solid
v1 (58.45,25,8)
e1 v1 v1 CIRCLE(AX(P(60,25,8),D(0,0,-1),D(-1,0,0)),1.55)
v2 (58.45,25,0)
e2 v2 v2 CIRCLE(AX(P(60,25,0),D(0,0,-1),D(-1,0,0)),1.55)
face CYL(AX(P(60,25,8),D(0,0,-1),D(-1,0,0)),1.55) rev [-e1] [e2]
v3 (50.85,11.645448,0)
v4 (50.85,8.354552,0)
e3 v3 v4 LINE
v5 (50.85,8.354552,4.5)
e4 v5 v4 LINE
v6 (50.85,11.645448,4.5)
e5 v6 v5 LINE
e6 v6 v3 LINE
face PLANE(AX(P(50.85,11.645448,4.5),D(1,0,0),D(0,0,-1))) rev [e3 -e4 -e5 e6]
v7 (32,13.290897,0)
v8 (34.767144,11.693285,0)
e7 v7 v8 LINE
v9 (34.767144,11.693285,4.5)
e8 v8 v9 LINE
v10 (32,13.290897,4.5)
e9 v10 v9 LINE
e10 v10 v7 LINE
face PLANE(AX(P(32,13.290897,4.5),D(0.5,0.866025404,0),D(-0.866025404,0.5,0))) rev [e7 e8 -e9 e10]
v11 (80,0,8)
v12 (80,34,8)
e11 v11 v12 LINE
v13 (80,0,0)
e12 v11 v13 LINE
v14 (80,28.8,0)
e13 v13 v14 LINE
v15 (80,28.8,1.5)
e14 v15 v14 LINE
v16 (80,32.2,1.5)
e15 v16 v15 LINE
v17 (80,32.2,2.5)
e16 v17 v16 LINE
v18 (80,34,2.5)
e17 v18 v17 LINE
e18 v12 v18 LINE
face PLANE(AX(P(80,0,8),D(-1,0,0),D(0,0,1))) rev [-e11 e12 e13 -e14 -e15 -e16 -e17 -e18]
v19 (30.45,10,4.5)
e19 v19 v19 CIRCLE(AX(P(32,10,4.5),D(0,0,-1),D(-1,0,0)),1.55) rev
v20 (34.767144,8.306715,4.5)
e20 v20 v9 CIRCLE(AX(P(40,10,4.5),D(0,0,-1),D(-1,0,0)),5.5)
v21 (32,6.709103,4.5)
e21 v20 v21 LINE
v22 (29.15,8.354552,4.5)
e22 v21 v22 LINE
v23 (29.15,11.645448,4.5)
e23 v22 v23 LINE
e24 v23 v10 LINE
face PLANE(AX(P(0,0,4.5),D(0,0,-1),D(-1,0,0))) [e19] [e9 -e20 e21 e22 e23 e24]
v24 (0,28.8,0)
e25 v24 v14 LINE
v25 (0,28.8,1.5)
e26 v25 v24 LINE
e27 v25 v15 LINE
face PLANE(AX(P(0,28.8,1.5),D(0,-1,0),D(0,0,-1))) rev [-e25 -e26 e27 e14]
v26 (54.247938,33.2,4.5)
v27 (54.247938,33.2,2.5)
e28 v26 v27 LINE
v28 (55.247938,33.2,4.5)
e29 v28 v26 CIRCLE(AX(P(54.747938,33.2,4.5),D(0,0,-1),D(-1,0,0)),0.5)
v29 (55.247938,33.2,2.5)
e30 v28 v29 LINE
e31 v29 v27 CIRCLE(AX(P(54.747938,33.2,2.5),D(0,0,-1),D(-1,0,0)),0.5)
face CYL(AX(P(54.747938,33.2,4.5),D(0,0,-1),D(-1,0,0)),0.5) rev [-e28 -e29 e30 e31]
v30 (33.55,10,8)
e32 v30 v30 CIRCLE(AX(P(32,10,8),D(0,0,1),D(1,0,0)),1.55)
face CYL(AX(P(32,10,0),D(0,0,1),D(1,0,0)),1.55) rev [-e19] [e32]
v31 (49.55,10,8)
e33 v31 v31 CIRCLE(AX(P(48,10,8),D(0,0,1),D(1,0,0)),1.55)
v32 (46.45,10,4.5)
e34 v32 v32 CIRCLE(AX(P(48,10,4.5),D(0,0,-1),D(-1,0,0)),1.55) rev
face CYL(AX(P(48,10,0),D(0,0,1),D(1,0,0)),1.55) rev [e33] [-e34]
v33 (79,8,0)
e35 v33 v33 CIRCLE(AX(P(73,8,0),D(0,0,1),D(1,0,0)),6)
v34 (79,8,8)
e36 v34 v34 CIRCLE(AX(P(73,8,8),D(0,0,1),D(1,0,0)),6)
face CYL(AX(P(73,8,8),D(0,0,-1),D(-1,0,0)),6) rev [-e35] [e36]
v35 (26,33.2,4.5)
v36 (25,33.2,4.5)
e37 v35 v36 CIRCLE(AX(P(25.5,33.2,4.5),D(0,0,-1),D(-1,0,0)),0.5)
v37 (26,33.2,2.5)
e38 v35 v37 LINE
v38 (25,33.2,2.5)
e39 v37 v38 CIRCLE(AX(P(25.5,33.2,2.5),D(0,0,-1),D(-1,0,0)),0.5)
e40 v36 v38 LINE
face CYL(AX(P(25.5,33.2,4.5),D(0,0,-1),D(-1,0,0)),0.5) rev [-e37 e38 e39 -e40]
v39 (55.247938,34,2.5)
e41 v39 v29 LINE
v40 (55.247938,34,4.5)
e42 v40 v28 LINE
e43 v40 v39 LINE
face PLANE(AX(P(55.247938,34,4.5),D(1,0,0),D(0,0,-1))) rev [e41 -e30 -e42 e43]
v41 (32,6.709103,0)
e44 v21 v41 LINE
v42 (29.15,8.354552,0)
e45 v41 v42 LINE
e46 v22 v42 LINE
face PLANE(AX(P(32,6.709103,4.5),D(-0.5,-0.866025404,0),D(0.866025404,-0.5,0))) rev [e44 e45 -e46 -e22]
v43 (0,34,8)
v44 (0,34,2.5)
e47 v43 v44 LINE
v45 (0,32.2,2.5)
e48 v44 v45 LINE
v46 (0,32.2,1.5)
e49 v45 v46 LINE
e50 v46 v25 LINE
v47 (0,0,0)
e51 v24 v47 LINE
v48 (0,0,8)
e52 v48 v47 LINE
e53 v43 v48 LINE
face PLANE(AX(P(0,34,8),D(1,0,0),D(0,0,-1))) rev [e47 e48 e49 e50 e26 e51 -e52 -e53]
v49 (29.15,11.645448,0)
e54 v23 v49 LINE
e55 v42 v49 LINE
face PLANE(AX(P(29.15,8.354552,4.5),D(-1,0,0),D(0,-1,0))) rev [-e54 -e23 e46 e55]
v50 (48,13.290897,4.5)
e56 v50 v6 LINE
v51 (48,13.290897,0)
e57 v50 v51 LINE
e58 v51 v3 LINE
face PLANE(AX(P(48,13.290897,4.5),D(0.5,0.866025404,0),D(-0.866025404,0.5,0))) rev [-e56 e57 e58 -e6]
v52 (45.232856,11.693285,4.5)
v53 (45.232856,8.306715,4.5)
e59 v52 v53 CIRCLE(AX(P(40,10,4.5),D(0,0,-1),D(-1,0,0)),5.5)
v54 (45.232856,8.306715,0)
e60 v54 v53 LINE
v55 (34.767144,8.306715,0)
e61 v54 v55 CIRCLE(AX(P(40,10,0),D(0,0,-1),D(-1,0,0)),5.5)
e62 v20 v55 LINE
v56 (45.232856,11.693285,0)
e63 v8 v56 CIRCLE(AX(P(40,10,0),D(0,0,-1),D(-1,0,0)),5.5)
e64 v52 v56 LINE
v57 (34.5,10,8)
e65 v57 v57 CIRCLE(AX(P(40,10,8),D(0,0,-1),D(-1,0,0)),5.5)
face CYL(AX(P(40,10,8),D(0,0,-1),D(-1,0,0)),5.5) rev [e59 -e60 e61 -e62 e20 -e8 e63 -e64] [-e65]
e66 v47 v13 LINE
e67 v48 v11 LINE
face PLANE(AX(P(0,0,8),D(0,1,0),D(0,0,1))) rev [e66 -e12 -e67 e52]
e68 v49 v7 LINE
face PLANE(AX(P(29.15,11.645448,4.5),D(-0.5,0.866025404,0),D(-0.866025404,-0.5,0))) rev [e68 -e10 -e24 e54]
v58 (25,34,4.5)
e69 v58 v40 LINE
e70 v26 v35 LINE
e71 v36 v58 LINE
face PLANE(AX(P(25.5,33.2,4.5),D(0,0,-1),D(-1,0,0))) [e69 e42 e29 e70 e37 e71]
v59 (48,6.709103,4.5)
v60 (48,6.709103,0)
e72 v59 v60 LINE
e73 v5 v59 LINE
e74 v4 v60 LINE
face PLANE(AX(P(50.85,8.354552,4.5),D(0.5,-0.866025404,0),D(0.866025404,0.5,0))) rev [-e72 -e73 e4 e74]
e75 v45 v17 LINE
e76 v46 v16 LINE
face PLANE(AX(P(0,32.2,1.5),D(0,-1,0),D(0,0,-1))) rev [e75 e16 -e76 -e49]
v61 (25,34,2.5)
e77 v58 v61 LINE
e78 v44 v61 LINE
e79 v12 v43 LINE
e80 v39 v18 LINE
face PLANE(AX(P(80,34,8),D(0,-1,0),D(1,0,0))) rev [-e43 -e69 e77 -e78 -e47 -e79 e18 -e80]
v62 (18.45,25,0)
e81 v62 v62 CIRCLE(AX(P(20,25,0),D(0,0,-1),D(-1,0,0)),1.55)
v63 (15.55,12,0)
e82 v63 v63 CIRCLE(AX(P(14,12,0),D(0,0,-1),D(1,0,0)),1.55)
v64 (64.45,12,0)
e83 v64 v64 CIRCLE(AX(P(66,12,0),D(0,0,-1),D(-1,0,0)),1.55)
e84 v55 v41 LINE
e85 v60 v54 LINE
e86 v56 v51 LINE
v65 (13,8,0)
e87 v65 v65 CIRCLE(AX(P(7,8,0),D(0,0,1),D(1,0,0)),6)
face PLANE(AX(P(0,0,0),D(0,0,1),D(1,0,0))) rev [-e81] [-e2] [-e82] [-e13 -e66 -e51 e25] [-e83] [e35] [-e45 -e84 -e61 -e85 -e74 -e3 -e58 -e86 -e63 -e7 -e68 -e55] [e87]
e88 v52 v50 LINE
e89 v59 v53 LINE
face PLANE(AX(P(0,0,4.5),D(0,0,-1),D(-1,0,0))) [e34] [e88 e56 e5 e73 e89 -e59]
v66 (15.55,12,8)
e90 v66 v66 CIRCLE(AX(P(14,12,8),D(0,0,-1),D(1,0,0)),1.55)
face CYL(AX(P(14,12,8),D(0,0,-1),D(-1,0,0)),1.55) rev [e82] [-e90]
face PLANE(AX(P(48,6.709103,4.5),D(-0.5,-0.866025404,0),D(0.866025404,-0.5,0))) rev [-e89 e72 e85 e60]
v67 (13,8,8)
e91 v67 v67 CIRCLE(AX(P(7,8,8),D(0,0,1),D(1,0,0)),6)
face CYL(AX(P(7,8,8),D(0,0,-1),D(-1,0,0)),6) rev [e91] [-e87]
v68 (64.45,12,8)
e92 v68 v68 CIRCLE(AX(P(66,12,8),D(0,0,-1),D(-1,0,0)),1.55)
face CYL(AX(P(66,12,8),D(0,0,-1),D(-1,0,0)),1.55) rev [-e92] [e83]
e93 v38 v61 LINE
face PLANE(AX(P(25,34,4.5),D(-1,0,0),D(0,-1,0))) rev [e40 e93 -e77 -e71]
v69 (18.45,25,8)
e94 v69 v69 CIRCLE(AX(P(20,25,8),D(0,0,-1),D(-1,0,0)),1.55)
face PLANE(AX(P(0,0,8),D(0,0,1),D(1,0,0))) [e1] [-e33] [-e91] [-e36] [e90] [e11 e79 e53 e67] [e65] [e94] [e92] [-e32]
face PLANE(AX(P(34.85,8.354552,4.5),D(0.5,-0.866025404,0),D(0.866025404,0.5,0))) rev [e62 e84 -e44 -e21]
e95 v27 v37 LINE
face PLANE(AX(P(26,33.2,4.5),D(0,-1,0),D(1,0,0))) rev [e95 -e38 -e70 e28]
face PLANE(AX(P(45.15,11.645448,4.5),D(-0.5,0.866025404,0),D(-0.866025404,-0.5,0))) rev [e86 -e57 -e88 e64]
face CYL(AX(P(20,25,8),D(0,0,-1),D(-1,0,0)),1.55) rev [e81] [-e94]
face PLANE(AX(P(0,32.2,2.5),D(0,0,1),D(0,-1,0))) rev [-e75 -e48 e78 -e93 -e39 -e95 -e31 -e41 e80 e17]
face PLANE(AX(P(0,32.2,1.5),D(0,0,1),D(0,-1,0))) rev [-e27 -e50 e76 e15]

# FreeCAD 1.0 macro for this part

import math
import FreeCAD as App
import Part
import Sketcher
Q = App.Units.Quantity


def add_polygon(sketch, points):
    """Adds a closed chain of lines whose ends are joined by coincident constraints."""
    first, n = sketch.GeometryCount, len(points)
    for a, b in zip(points, points[1:] + points[:1]):
        sketch.addGeometry(Part.LineSegment(App.Vector(*a, 0), App.Vector(*b, 0)), False)
    for i in range(n):
        sketch.addConstraint(Sketcher.Constraint("Coincident", first + i, 2, first + (i + 1) % n, 1))

doc = App.newDocument("Part")
body = doc.addObject("PartDesign::Body", "Body")

sketch1 = body.newObject("Sketcher::SketchObject", "Sketch")
sketch1.AttachmentSupport = (doc.getObject("XY_Plane"), [""])
sketch1.MapMode = "FlatFace"
add_polygon(sketch1, [(0, 34), (0, 0), (80, 0), (80, 34)])
sketch1.addGeometry(Part.Circle(App.Vector(7, 8, 0), App.Vector(0, 0, 1), 6), False)
sketch1.addGeometry(Part.Circle(App.Vector(73, 8, 0), App.Vector(0, 0, 1), 6), False)
sketch1.addGeometry(Part.Circle(App.Vector(40, 10, 0), App.Vector(0, 0, 1), 4.05), False)
sketch1.addConstraint([
    Sketcher.Constraint("Vertical", 0),
    Sketcher.Constraint("Horizontal", 1),
    Sketcher.Constraint("Vertical", 2),
    Sketcher.Constraint("Horizontal", 3),
    Sketcher.Constraint("Coincident", 0, 2, -1, 1),
    Sketcher.Constraint("Equal", 4, 5),
    Sketcher.Constraint("Horizontal", 4, 3, 5, 3),
    Sketcher.Constraint("Diameter", 4, 12.0),
    Sketcher.Constraint("Diameter", 6, 8.1),
    Sketcher.Constraint("DistanceX", 1, 1, 1, 2, 80.0),
    Sketcher.Constraint("DistanceY", 0, 2, 0, 1, 34.0),
    Sketcher.Constraint("DistanceX", -1, 1, 4, 3, 7.0),
    Sketcher.Constraint("DistanceY", -1, 1, 4, 3, 8.0),
    Sketcher.Constraint("DistanceX", -1, 1, 5, 3, 73.0),
    Sketcher.Constraint("DistanceX", -1, 1, 6, 3, 40.0),
    Sketcher.Constraint("DistanceY", -1, 1, 6, 3, 10.0),
])
pad1 = body.newObject("PartDesign::Pad", "Pad")
pad1.Profile = sketch1
pad1.Length = 8

sketch2 = body.newObject("Sketcher::SketchObject", "Sketch001")
sketch2.AttachmentSupport = (doc.getObject("YZ_Plane"), [""])
sketch2.MapMode = "FlatFace"
sketch2.AttachmentOffset = App.Placement(App.Vector(0, 0, 80), App.Rotation())
add_polygon(sketch2, [(32.2, 2.5), (32.2, 1.5), (28.8, 1.5), (28.8, 0), (34, 0), (34, 2.5)])
sketch2.addConstraint([
    Sketcher.Constraint("Vertical", 0),
    Sketcher.Constraint("Horizontal", 1),
    Sketcher.Constraint("Vertical", 2),
    Sketcher.Constraint("Horizontal", 3),
    Sketcher.Constraint("Vertical", 4),
    Sketcher.Constraint("Horizontal", 5),
    Sketcher.Constraint("PointOnObject", 2, 2, -1),
    Sketcher.Constraint("DistanceY", 0, 2, 0, 1, 1.0),
    Sketcher.Constraint("DistanceX", 1, 2, 1, 1, 3.4),
    Sketcher.Constraint("DistanceX", 3, 1, 3, 2, 5.2),
    Sketcher.Constraint("DistanceY", 2, 2, 2, 1, 1.5),
    Sketcher.Constraint("DistanceX", -1, 1, 3, 2, 34.0),
])
pocket1 = body.newObject("PartDesign::Pocket", "Pocket")
pocket1.Profile = sketch2
pocket1.Type = "ThroughAll"

sketch3 = body.newObject("Sketcher::SketchObject", "Sketch002")
sketch3.AttachmentSupport = (doc.getObject("XY_Plane"), [""])
sketch3.MapMode = "FlatFace"
sketch3.AttachmentOffset = App.Placement(App.Vector(0, 0, 8), App.Rotation())
sketch3.addGeometry([
    Part.Circle(App.Vector(48, 10, 0), App.Vector(0, 0, 1), 1.55),
    Part.Circle(App.Vector(32, 10, 0), App.Vector(0, 0, 1), 1.55),
], False)
sketch3.addConstraint([
    Sketcher.Constraint("Equal", 0, 1),
    Sketcher.Constraint("Horizontal", 0, 3, 1, 3),
    Sketcher.Constraint("Diameter", 0, 3.1),
    Sketcher.Constraint("DistanceX", -1, 1, 0, 3, 48.0),
    Sketcher.Constraint("DistanceY", -1, 1, 0, 3, 10.0),
    Sketcher.Constraint("DistanceX", -1, 1, 1, 3, 32.0),
])
pocket2 = body.newObject("PartDesign::Pocket", "Pocket001")
pocket2.Profile = sketch3
pocket2.Type = "ThroughAll"

sketch4 = body.newObject("Sketcher::SketchObject", "Sketch003")
sketch4.AttachmentSupport = (doc.getObject("XY_Plane"), [""])
sketch4.MapMode = "FlatFace"
add_polygon(sketch4, [(45.15, 8.354552), (45.15, 11.645448), (48, 13.290897), (50.85, 11.645448), (50.85, 8.354552), (48, 6.709103)])
add_polygon(sketch4, [(34.85, 8.354552), (32, 6.709103), (29.15, 8.354552), (29.15, 11.645448), (32, 13.290897), (34.85, 11.645448)])
sketch4.addConstraint([
    Sketcher.Constraint("Vertical", 0),
    Sketcher.Constraint("Vertical", 3),
    Sketcher.Constraint("Vertical", 8),
    Sketcher.Constraint("Vertical", 11),
    Sketcher.Constraint("Parallel", 1, 4),
    Sketcher.Constraint("Parallel", 2, 5),
    Sketcher.Constraint("Parallel", 4, 6),
    Sketcher.Constraint("Parallel", 5, 7),
    Sketcher.Constraint("Parallel", 6, 9),
    Sketcher.Constraint("Parallel", 7, 10),
    Sketcher.Constraint("Horizontal", 0, 2, 2, 2),
    Sketcher.Constraint("Horizontal", 3, 2, 5, 2),
    Sketcher.Constraint("Horizontal", 4, 2, 6, 2),
    Sketcher.Constraint("Horizontal", 5, 2, 7, 2),
    Sketcher.Constraint("Horizontal", 2, 2, 8, 2),
    Sketcher.Constraint("Horizontal", 1, 2, 9, 2),
    Sketcher.Constraint("Horizontal", 8, 2, 10, 2),
    Sketcher.Constraint("Vertical", 1, 2, 4, 2),
    Sketcher.Constraint("Angle", 1, Q("30 deg")),
    Sketcher.Constraint("DistanceX", -1, 1, 1, 2, 48.0),
    Sketcher.Constraint("DistanceX", -1, 1, 6, 2, 32.0),
    Sketcher.Constraint("DistanceX", 0, 2, 2, 2, 5.7),
    Sketcher.Constraint("DistanceY", 0, 1, 0, 2, 3.290897),
    Sketcher.Constraint("DistanceY", -1, 1, 0, 2, 11.645448),
])
pocket3 = body.newObject("PartDesign::Pocket", "Pocket002")
pocket3.Profile = sketch4
pocket3.Length = 4.5
pocket3.Reversed = True

sketch5 = body.newObject("Sketcher::SketchObject", "Sketch004")
sketch5.AttachmentSupport = (doc.getObject("XY_Plane"), [""])
sketch5.MapMode = "FlatFace"
sketch5.addGeometry([
    Part.Circle(App.Vector(60, 25, 0), App.Vector(0, 0, 1), 1.55),
    Part.Circle(App.Vector(20, 25, 0), App.Vector(0, 0, 1), 1.55),
], False)
sketch5.addConstraint([
    Sketcher.Constraint("Equal", 0, 1),
    Sketcher.Constraint("Horizontal", 0, 3, 1, 3),
    Sketcher.Constraint("Diameter", 0, 3.1),
    Sketcher.Constraint("DistanceX", -1, 1, 0, 3, 60.0),
    Sketcher.Constraint("DistanceY", -1, 1, 0, 3, 25.0),
    Sketcher.Constraint("DistanceX", -1, 1, 1, 3, 20.0),
])
pocket4 = body.newObject("PartDesign::Pocket", "Pocket003")
pocket4.Profile = sketch5
pocket4.Type = "ThroughAll"
pocket4.Reversed = True

sketch6 = body.newObject("Sketcher::SketchObject", "Sketch005")
sketch6.AttachmentSupport = (doc.getObject("XY_Plane"), [""])
sketch6.MapMode = "FlatFace"
sketch6.AttachmentOffset = App.Placement(App.Vector(0, 0, 2.5), App.Rotation())
sketch6.addGeometry([
    Part.LineSegment(App.Vector(25, 34, 0), App.Vector(55.247938, 34, 0)),
    Part.LineSegment(App.Vector(55.247938, 34, 0), App.Vector(55.247938, 33.2, 0)),
    Part.ArcOfCircle(Part.Circle(App.Vector(54.747938, 33.2, 0), App.Vector(0, 0, 1), 0.5), math.radians(180), math.radians(360)),
    Part.LineSegment(App.Vector(54.247938, 33.2, 0), App.Vector(26, 33.2, 0)),
    Part.ArcOfCircle(Part.Circle(App.Vector(25.5, 33.2, 0), App.Vector(0, 0, 1), 0.5), math.radians(180), math.radians(360)),
    Part.LineSegment(App.Vector(25, 33.2, 0), App.Vector(25, 34, 0)),
], False)
sketch6.addConstraint([
    Sketcher.Constraint("Coincident", 0, 2, 1, 1),
    Sketcher.Constraint("Tangent", 1, 2, 2, 2),
    Sketcher.Constraint("Coincident", 2, 1, 3, 1),
    Sketcher.Constraint("Coincident", 3, 2, 4, 2),
    Sketcher.Constraint("Tangent", 4, 1, 5, 1),
    Sketcher.Constraint("Coincident", 5, 2, 0, 1),
    Sketcher.Constraint("Horizontal", 0),
    Sketcher.Constraint("Vertical", 1),
    Sketcher.Constraint("Horizontal", 3),
    Sketcher.Constraint("Vertical", 5),
    Sketcher.Constraint("Equal", 2, 4),
    Sketcher.Constraint("Horizontal", 2, 3, 4, 3),
    Sketcher.Constraint("Horizontal", 1, 2, 2, 1),
    Sketcher.Constraint("Radius", 2, 0.5),
    Sketcher.Constraint("DistanceY", 1, 2, 1, 1, 0.8),
    Sketcher.Constraint("DistanceY", -1, 1, 0, 2, 34.0),
    Sketcher.Constraint("DistanceX", -1, 1, 3, 2, 26.0),
    Sketcher.Constraint("DistanceX", 0, 1, 0, 2, 30.247938),
])
pocket5 = body.newObject("PartDesign::Pocket", "Pocket004")
pocket5.Profile = sketch6
pocket5.Length = 2
pocket5.Reversed = True

sketch7 = body.newObject("Sketcher::SketchObject", "Sketch006")
sketch7.AttachmentSupport = (doc.getObject("XY_Plane"), [""])
sketch7.MapMode = "FlatFace"
sketch7.addGeometry([
    Part.Circle(App.Vector(66, 12, 0), App.Vector(0, 0, 1), 1.55),
    Part.Circle(App.Vector(14, 12, 0), App.Vector(0, 0, 1), 1.55),
], False)
sketch7.addConstraint([
    Sketcher.Constraint("Equal", 0, 1),
    Sketcher.Constraint("Horizontal", 0, 3, 1, 3),
    Sketcher.Constraint("Diameter", 0, 3.1),
    Sketcher.Constraint("DistanceX", -1, 1, 0, 3, 66.0),
    Sketcher.Constraint("DistanceY", -1, 1, 0, 3, 12.0),
    Sketcher.Constraint("DistanceX", -1, 1, 1, 3, 14.0),
])
pocket6 = body.newObject("PartDesign::Pocket", "Pocket005")
pocket6.Profile = sketch7
pocket6.Type = "ThroughAll"
pocket6.Reversed = True

sketch8 = body.newObject("Sketcher::SketchObject", "Sketch007")
sketch8.AttachmentSupport = (doc.getObject("XY_Plane"), [""])
sketch8.MapMode = "FlatFace"
sketch8.addGeometry(Part.Circle(App.Vector(40, 10, 0), App.Vector(0, 0, 1), 5.5), False)
sketch8.addConstraint([
    Sketcher.Constraint("Diameter", 0, 11.0),
    Sketcher.Constraint("DistanceX", -1, 1, 0, 3, 40.0),
    Sketcher.Constraint("DistanceY", -1, 1, 0, 3, 10.0),
])
pocket7 = body.newObject("PartDesign::Pocket", "Pocket006")
pocket7.Profile = sketch8
pocket7.Type = "ThroughAll"
pocket7.Reversed = True

doc.recompute()
